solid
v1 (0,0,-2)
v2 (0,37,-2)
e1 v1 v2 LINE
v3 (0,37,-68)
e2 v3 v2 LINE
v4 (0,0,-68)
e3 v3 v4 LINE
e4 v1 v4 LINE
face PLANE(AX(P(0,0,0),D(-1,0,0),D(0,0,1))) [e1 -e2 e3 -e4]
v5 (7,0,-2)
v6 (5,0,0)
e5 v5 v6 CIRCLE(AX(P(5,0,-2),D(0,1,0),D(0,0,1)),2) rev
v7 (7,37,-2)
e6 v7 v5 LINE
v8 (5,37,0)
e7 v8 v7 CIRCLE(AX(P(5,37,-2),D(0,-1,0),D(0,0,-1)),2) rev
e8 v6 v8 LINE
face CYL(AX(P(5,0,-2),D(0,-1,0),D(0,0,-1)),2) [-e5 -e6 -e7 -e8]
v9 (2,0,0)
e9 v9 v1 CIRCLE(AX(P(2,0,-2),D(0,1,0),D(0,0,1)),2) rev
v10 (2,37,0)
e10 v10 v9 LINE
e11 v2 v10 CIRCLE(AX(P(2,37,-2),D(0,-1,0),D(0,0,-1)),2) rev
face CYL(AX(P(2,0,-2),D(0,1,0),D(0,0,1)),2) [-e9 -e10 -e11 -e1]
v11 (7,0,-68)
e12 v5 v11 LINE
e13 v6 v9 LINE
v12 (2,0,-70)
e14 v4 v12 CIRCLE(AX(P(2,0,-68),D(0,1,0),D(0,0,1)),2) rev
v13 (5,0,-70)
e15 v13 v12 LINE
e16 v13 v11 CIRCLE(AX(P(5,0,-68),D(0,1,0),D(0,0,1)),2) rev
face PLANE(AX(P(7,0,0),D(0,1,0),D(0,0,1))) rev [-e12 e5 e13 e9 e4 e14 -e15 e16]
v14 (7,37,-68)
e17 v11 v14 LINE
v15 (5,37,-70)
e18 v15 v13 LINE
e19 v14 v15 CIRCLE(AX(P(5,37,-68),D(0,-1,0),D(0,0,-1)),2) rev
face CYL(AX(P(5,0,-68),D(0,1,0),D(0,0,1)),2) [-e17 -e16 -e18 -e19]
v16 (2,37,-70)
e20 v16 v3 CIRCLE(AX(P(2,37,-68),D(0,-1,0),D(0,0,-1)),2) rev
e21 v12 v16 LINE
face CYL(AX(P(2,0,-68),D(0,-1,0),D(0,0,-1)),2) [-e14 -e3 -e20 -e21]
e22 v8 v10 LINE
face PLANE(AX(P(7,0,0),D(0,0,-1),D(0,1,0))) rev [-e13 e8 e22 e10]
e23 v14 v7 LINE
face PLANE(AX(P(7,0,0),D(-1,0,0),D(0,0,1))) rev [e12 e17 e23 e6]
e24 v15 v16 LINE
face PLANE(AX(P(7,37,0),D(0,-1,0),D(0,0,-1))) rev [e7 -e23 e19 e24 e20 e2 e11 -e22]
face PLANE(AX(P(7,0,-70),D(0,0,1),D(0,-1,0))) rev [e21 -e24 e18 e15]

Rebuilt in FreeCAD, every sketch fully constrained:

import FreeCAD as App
import Part
import Sketcher
from FreeCAD import Vector


def edges_at(feature, points):
    """Names of the edges that pass closest to the given points."""
    edges = feature.Shape.Edges
    near = lambda p: min(range(len(edges)), key=lambda i: edges[i].distToShape(Part.Vertex(*p))[0])
    return sorted({f"Edge{near(p) + 1}" for p in points})

doc = App.newDocument("Part")
body = doc.addObject("PartDesign::Body", "Body")

# Sketch on YZ plane
sketch1 = doc.addObject("Sketcher::SketchObject", "Sketch")
body.addObject(sketch1)
sketch1.AttachmentSupport = (doc.YZ_Plane, [""])
sketch1.MapMode = "FlatFace"
sketch1.addGeometry([
    Part.LineSegment(Vector(37, 0, 0), Vector(0, 0, 0)),
    Part.LineSegment(Vector(0, 0, 0), Vector(0, -70, 0)),
    Part.LineSegment(Vector(0, -70, 0), Vector(37, -70, 0)),
    Part.LineSegment(Vector(37, -70, 0), Vector(37, 0, 0)),
], False)
sketch1.addConstraint([
    Sketcher.Constraint("Coincident", 0, 2, 1, 1),
    Sketcher.Constraint("Coincident", 1, 2, 2, 1),
    Sketcher.Constraint("Coincident", 2, 2, 3, 1),
    Sketcher.Constraint("Coincident", 3, 2, 0, 1),
    Sketcher.Constraint("Horizontal", 0),
    Sketcher.Constraint("Vertical", 1),
    Sketcher.Constraint("Horizontal", 2),
    Sketcher.Constraint("Vertical", 3),
    Sketcher.Constraint("Coincident", 0, 2, -1, 1),
    Sketcher.Constraint("DistanceX", 0, 2, 0, 1, 37.0),
    Sketcher.Constraint("DistanceY", 1, 2, 1, 1, 70.0),
])
pad1 = doc.addObject("PartDesign::Pad", "Pad")
body.addObject(pad1)
pad1.Profile = sketch1
pad1.Length = 7
doc.recompute()

fillet = doc.addObject("PartDesign::Fillet", "Fillet")
body.addObject(fillet)
fillet.Base = (pad1, edges_at(pad1, [
    (7, 18.5, -70),
    (7, 18.5, 0),
    (0, 18.5, -70),
    (0, 18.5, 0),
]))
fillet.Radius = 2

doc.recompute()
